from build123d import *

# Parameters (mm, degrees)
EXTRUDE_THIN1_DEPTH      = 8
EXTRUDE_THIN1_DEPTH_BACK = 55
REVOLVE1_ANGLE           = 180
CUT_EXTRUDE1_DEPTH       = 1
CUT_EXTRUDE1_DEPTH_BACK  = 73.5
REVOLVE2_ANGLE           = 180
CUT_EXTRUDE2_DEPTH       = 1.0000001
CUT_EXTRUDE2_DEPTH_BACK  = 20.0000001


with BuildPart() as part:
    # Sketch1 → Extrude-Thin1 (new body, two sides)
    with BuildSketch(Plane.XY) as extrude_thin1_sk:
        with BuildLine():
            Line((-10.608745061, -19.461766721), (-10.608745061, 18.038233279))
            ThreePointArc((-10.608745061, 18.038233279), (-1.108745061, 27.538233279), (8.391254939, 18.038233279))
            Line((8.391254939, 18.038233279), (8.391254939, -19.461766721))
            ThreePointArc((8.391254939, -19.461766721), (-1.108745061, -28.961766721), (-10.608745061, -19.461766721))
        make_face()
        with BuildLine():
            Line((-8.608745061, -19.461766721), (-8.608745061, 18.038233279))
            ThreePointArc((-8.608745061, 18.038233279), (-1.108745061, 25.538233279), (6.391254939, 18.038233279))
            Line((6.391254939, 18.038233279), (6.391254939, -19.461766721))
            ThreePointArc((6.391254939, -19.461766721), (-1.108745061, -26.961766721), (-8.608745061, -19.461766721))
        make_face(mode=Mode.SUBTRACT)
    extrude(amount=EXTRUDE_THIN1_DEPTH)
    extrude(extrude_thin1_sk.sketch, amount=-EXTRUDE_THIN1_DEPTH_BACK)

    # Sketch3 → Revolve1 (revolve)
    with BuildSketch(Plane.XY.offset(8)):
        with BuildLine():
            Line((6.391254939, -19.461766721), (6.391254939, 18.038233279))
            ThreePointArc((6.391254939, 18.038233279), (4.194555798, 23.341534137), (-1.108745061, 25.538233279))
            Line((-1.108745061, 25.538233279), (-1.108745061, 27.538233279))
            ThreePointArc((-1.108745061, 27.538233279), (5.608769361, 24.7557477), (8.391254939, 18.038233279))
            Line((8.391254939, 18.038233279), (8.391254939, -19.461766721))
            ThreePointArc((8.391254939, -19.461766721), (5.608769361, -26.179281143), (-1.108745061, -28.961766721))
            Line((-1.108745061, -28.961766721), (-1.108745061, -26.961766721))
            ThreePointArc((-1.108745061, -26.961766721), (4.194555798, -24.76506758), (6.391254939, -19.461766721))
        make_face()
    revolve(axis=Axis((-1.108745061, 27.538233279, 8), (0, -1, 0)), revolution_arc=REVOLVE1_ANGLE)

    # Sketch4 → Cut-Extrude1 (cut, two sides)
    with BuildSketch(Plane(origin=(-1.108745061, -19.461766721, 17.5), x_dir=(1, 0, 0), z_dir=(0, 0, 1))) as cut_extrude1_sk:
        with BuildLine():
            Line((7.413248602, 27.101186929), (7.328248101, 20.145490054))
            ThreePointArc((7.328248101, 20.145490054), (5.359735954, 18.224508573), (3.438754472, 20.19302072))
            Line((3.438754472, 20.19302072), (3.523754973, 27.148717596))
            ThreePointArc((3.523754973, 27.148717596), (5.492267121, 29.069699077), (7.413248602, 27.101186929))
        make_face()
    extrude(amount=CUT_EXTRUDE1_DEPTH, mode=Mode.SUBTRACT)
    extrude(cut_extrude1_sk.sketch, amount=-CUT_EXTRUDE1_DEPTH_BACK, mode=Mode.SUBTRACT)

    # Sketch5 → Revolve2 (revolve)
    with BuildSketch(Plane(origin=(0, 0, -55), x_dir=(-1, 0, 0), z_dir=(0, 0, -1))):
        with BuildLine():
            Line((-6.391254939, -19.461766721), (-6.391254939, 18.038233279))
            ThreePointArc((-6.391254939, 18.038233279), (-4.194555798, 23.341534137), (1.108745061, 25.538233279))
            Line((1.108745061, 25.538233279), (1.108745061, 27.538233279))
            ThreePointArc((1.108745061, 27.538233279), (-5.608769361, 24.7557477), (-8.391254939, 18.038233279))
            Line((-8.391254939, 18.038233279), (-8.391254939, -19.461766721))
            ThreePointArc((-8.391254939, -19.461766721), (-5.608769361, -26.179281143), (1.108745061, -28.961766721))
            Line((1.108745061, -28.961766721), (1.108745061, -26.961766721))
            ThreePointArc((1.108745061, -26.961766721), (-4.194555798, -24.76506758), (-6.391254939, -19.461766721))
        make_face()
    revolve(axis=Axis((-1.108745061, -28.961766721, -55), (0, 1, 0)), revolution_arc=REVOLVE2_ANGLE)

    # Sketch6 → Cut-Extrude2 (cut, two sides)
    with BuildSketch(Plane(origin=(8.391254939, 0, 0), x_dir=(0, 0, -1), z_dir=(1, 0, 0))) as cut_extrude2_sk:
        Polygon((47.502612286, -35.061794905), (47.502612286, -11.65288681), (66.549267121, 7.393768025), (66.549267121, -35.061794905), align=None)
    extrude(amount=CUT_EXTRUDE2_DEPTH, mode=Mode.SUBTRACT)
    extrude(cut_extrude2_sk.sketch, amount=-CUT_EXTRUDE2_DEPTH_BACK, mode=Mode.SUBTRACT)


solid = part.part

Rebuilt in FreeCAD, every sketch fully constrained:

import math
import FreeCAD as App
import Part
import Sketcher
Q = App.Units.Quantity


def add_polygon(sketch, points):
    """Adds a closed chain of lines whose ends are joined by coincident constraints."""
    first, n = sketch.GeometryCount, len(points)
    for a, b in zip(points, points[1:] + points[:1]):
        sketch.addGeometry(Part.LineSegment(App.Vector(*a, 0), App.Vector(*b, 0)), False)
    for i in range(n):
        sketch.addConstraint(Sketcher.Constraint("Coincident", first + i, 2, first + (i + 1) % n, 1))

doc = App.newDocument("Part")
body = doc.addObject("PartDesign::Body", "Body")

# Sketch on XY plane
sketch1 = body.newObject("Sketcher::SketchObject", "Sketch")
sketch1.AttachmentSupport = (doc.getObject("XY_Plane"), [""])
sketch1.MapMode = "FlatFace"
sketch1.addGeometry(Part.LineSegment(App.Vector(-10.608745, 18.038233, 0), App.Vector(-10.608745, -19.461767, 0)), False)
sketch1.addGeometry(Part.ArcOfCircle(Part.Circle(App.Vector(-1.108745, -19.461767, 0), App.Vector(0, 0, 1), 9.5), math.radians(180), math.radians(360)), False)
sketch1.addGeometry(Part.LineSegment(App.Vector(8.391255, -19.461767, 0), App.Vector(8.391255, 18.038233, 0)), False)
sketch1.addGeometry(Part.ArcOfCircle(Part.Circle(App.Vector(-1.108745, 18.038233, 0), App.Vector(0, 0, 1), 9.5), math.radians(0), math.radians(180)), False)
sketch1.addGeometry(Part.LineSegment(App.Vector(-8.608745, -19.461767, 0), App.Vector(-8.608745, 18.038233, 0)), False)
sketch1.addGeometry(Part.ArcOfCircle(Part.Circle(App.Vector(-1.108745, 18.038233, 0), App.Vector(0, 0, 1), 7.5), math.radians(0), math.radians(180)), False)
sketch1.addGeometry(Part.LineSegment(App.Vector(6.391255, 18.038233, 0), App.Vector(6.391255, -19.461767, 0)), False)
sketch1.addGeometry(Part.ArcOfCircle(Part.Circle(App.Vector(-1.108745, -19.461767, 0), App.Vector(0, 0, 1), 7.5), math.radians(180), math.radians(360)), False)
sketch1.addConstraint(Sketcher.Constraint("Tangent", 0, 2, 1, 1))
sketch1.addConstraint(Sketcher.Constraint("Tangent", 1, 2, 2, 1))
sketch1.addConstraint(Sketcher.Constraint("Tangent", 2, 2, 3, 1))
sketch1.addConstraint(Sketcher.Constraint("Tangent", 3, 2, 0, 1))
sketch1.addConstraint(Sketcher.Constraint("Tangent", 4, 2, 5, 2))
sketch1.addConstraint(Sketcher.Constraint("Tangent", 5, 1, 6, 1))
sketch1.addConstraint(Sketcher.Constraint("Tangent", 6, 2, 7, 2))
sketch1.addConstraint(Sketcher.Constraint("Tangent", 7, 1, 4, 1))
sketch1.addConstraint(Sketcher.Constraint("Vertical", 0))
sketch1.addConstraint(Sketcher.Constraint("Vertical", 2))
sketch1.addConstraint(Sketcher.Constraint("Vertical", 4))
sketch1.addConstraint(Sketcher.Constraint("Vertical", 6))
sketch1.addConstraint(Sketcher.Constraint("Coincident", 5, 3, 3, 3))
sketch1.addConstraint(Sketcher.Constraint("Horizontal", 7, 3, 0, 2))
sketch1.addConstraint(Sketcher.Constraint("Radius", 1, 9.5))
sketch1.addConstraint(Sketcher.Constraint("Radius", 5, 7.5))
sketch1.addConstraint(Sketcher.Constraint("DistanceY", 0, 2, 0, 1, 37.5))
sketch1.addConstraint(Sketcher.Constraint("DistanceX", 1, 3, -1, 1, 1.108745))
sketch1.addConstraint(Sketcher.Constraint("DistanceY", 1, 3, -1, 1, 19.461767))
pad1 = body.newObject("PartDesign::Pad", "Pad")
pad1.Profile = sketch1
pad1.Type = "TwoLengths"
pad1.Length = 8
pad1.Length2 = 55

# Sketch on XY plane
sketch2 = body.newObject("Sketcher::SketchObject", "Sketch001")
sketch2.AttachmentSupport = (doc.getObject("XY_Plane"), [""])
sketch2.MapMode = "FlatFace"
sketch2.AttachmentOffset = App.Placement(App.Vector(0, 0, 8), App.Rotation())
sketch2.addGeometry(Part.LineSegment(App.Vector(6.391255, 18.038233, 0), App.Vector(6.391255, -19.461767, 0)), False)
sketch2.addGeometry(Part.ArcOfCircle(Part.Circle(App.Vector(-1.108745, -19.461767, 0), App.Vector(0, 0, 1), 7.5), math.radians(-90), math.radians(0)), False)
sketch2.addGeometry(Part.LineSegment(App.Vector(-1.108745, -26.961767, 0), App.Vector(-1.108745, -28.961767, 0)), False)
sketch2.addGeometry(Part.ArcOfCircle(Part.Circle(App.Vector(-1.108745, -19.461767, 0), App.Vector(0, 0, 1), 9.5), math.radians(-90), math.radians(0)), False)
sketch2.addGeometry(Part.LineSegment(App.Vector(8.391255, -19.461767, 0), App.Vector(8.391255, 18.038233, 0)), False)
sketch2.addGeometry(Part.ArcOfCircle(Part.Circle(App.Vector(-1.108745, 18.038233, 0), App.Vector(0, 0, 1), 9.5), math.radians(0), math.radians(90)), False)
sketch2.addGeometry(Part.LineSegment(App.Vector(-1.108745, 27.538233, 0), App.Vector(-1.108745, 25.538233, 0)), False)
sketch2.addGeometry(Part.ArcOfCircle(Part.Circle(App.Vector(-1.108745, 18.038233, 0), App.Vector(0, 0, 1), 7.5), math.radians(0), math.radians(90)), False)
sketch2.addGeometry(Part.LineSegment(App.Vector(-1.108745, 27.538233, 0), App.Vector(-1.108745, -28.961767, 0)), True)  # axis
sketch2.addConstraint(Sketcher.Constraint("Tangent", 0, 2, 1, 2))
sketch2.addConstraint(Sketcher.Constraint("Coincident", 1, 1, 2, 1))
sketch2.addConstraint(Sketcher.Constraint("Coincident", 2, 2, 3, 1))
sketch2.addConstraint(Sketcher.Constraint("Tangent", 3, 2, 4, 1))
sketch2.addConstraint(Sketcher.Constraint("Tangent", 4, 2, 5, 1))
sketch2.addConstraint(Sketcher.Constraint("Coincident", 5, 2, 6, 1))
sketch2.addConstraint(Sketcher.Constraint("Coincident", 6, 2, 7, 2))
sketch2.addConstraint(Sketcher.Constraint("Tangent", 7, 1, 0, 1))
sketch2.addConstraint(Sketcher.Constraint("Vertical", 0))
sketch2.addConstraint(Sketcher.Constraint("Vertical", 2))
sketch2.addConstraint(Sketcher.Constraint("Vertical", 4))
sketch2.addConstraint(Sketcher.Constraint("Vertical", 6))
sketch2.addConstraint(Sketcher.Constraint("Vertical", 8))
sketch2.addConstraint(Sketcher.Constraint("Coincident", 3, 3, 1, 3))
sketch2.addConstraint(Sketcher.Constraint("Coincident", 7, 3, 5, 3))
sketch2.addConstraint(Sketcher.Constraint("Coincident", 8, 1, 5, 2))
sketch2.addConstraint(Sketcher.Constraint("Coincident", 8, 2, 2, 2))
sketch2.addConstraint(Sketcher.Constraint("Equal", 3, 5))
sketch2.addConstraint(Sketcher.Constraint("Vertical", 7, 3, 1, 1))
sketch2.addConstraint(Sketcher.Constraint("Radius", 1, 7.5))
sketch2.addConstraint(Sketcher.Constraint("Radius", 3, 9.5))
sketch2.addConstraint(Sketcher.Constraint("DistanceY", 0, 2, 0, 1, 37.5))
sketch2.addConstraint(Sketcher.Constraint("DistanceX", 1, 3, -1, 1, 1.108745))
sketch2.addConstraint(Sketcher.Constraint("DistanceY", 1, 3, -1, 1, 19.461767))
revolution = body.newObject("PartDesign::Revolution", "Revolution")
revolution.Profile = sketch2
revolution.ReferenceAxis = (sketch2, ["Axis0"])
revolution.Angle = 180

# Sketch on XY plane
sketch3 = body.newObject("Sketcher::SketchObject", "Sketch002")
sketch3.AttachmentSupport = (doc.getObject("XY_Plane"), [""])
sketch3.MapMode = "FlatFace"
sketch3.AttachmentOffset = App.Placement(App.Vector(0, 0, 17.5), App.Rotation())
sketch3.addGeometry(Part.LineSegment(App.Vector(6.219503, 0.683723, 0), App.Vector(6.304504, 7.63942, 0)), False)
sketch3.addGeometry(Part.ArcOfCircle(Part.Circle(App.Vector(4.359757, 7.663186, 0), App.Vector(0, 0, 1), 1.944892), math.radians(-0.700135), math.radians(179.299865)), False)
sketch3.addGeometry(Part.LineSegment(App.Vector(2.41501, 7.686951, 0), App.Vector(2.330009, 0.731254, 0)), False)
sketch3.addGeometry(Part.ArcOfCircle(Part.Circle(App.Vector(4.274756, 0.707489, 0), App.Vector(0, 0, 1), 1.944892), math.radians(179.299865), math.radians(359.299865)), False)
sketch3.addConstraint(Sketcher.Constraint("Tangent", 0, 2, 1, 1))
sketch3.addConstraint(Sketcher.Constraint("Tangent", 1, 2, 2, 1))
sketch3.addConstraint(Sketcher.Constraint("Tangent", 2, 2, 3, 1))
sketch3.addConstraint(Sketcher.Constraint("Tangent", 3, 2, 0, 1))
sketch3.addConstraint(Sketcher.Constraint("Equal", 1, 3))
sketch3.addConstraint(Sketcher.Constraint("Radius", 1, 1.944892))
sketch3.addConstraint(Sketcher.Constraint("DistanceX", 3, 3, 1, 3, 0.085))
sketch3.addConstraint(Sketcher.Constraint("DistanceY", -1, 1, 3, 3, 0.707489))
sketch3.addConstraint(Sketcher.Constraint("DistanceY", -1, 1, 0, 2, 7.63942))
sketch3.addConstraint(Sketcher.Constraint("DistanceX", -1, 1, 1, 2, 2.41501))
pocket1 = body.newObject("PartDesign::Pocket", "Pocket")
pocket1.Profile = sketch3
pocket1.Type = "ThroughAll"
pocket1.Midplane = True

# Sketch on XY plane
sketch4 = body.newObject("Sketcher::SketchObject", "Sketch003")
sketch4.AttachmentSupport = (doc.getObject("XY_Plane"), [""])
sketch4.MapMode = "FlatFace"
sketch4.AttachmentOffset = App.Placement(App.Vector(0, 0, -55), App.Rotation())
sketch4.addGeometry(Part.LineSegment(App.Vector(6.391255, -19.461767, 0), App.Vector(6.391255, 18.038233, 0)), False)
sketch4.addGeometry(Part.ArcOfCircle(Part.Circle(App.Vector(-1.108745, 18.038233, 0), App.Vector(0, 0, 1), 7.5), math.radians(0), math.radians(90)), False)
sketch4.addGeometry(Part.LineSegment(App.Vector(-1.108745, 25.538233, 0), App.Vector(-1.108745, 27.538233, 0)), False)
sketch4.addGeometry(Part.ArcOfCircle(Part.Circle(App.Vector(-1.108745, 18.038233, 0), App.Vector(0, 0, 1), 9.5), math.radians(0), math.radians(90)), False)
sketch4.addGeometry(Part.LineSegment(App.Vector(8.391255, 18.038233, 0), App.Vector(8.391255, -19.461767, 0)), False)
sketch4.addGeometry(Part.ArcOfCircle(Part.Circle(App.Vector(-1.108745, -19.461767, 0), App.Vector(0, 0, 1), 9.5), math.radians(-90), math.radians(0)), False)
sketch4.addGeometry(Part.LineSegment(App.Vector(-1.108745, -28.961767, 0), App.Vector(-1.108745, -26.961767, 0)), False)
sketch4.addGeometry(Part.ArcOfCircle(Part.Circle(App.Vector(-1.108745, -19.461767, 0), App.Vector(0, 0, 1), 7.5), math.radians(-90), math.radians(0)), False)
sketch4.addGeometry(Part.LineSegment(App.Vector(-1.108745, -28.961767, 0), App.Vector(-1.108745, 27.538233, 0)), True)  # axis
sketch4.addConstraint(Sketcher.Constraint("Tangent", 0, 2, 1, 1))
sketch4.addConstraint(Sketcher.Constraint("Coincident", 1, 2, 2, 1))
sketch4.addConstraint(Sketcher.Constraint("Coincident", 2, 2, 3, 2))
sketch4.addConstraint(Sketcher.Constraint("Tangent", 3, 1, 4, 1))
sketch4.addConstraint(Sketcher.Constraint("Tangent", 4, 2, 5, 2))
sketch4.addConstraint(Sketcher.Constraint("Coincident", 5, 1, 6, 1))
sketch4.addConstraint(Sketcher.Constraint("Coincident", 6, 2, 7, 1))
sketch4.addConstraint(Sketcher.Constraint("Tangent", 7, 2, 0, 1))
sketch4.addConstraint(Sketcher.Constraint("Vertical", 0))
sketch4.addConstraint(Sketcher.Constraint("Vertical", 2))
sketch4.addConstraint(Sketcher.Constraint("Vertical", 4))
sketch4.addConstraint(Sketcher.Constraint("Vertical", 6))
sketch4.addConstraint(Sketcher.Constraint("Vertical", 8))
sketch4.addConstraint(Sketcher.Constraint("Coincident", 3, 3, 1, 3))
sketch4.addConstraint(Sketcher.Constraint("Coincident", 7, 3, 5, 3))
sketch4.addConstraint(Sketcher.Constraint("Coincident", 8, 1, 5, 1))
sketch4.addConstraint(Sketcher.Constraint("Coincident", 8, 2, 2, 2))
sketch4.addConstraint(Sketcher.Constraint("Equal", 3, 5))
sketch4.addConstraint(Sketcher.Constraint("Vertical", 7, 3, 1, 2))
sketch4.addConstraint(Sketcher.Constraint("Radius", 1, 7.5))
sketch4.addConstraint(Sketcher.Constraint("Radius", 3, 9.5))
sketch4.addConstraint(Sketcher.Constraint("DistanceY", 0, 1, 0, 2, 37.5))
sketch4.addConstraint(Sketcher.Constraint("DistanceX", 1, 3, -1, 1, 1.108745))
sketch4.addConstraint(Sketcher.Constraint("DistanceY", -1, 1, 1, 3, 18.038233))
revolution2 = body.newObject("PartDesign::Revolution", "Revolution001")
revolution2.Profile = sketch4
revolution2.ReferenceAxis = (sketch4, ["Axis0"])
revolution2.Angle = 180

# Sketch on YZ plane
sketch5 = body.newObject("Sketcher::SketchObject", "Sketch004")
sketch5.AttachmentSupport = (doc.getObject("YZ_Plane"), [""])
sketch5.MapMode = "FlatFace"
sketch5.AttachmentOffset = App.Placement(App.Vector(0, 0, 8.391255), App.Rotation())
add_polygon(sketch5, [(-11.652887, -47.502612), (-35.061795, -47.502612), (-35.061795, -66.549267), (7.393768, -66.549267)])  # lines 0-3
sketch5.addConstraint(Sketcher.Constraint("Horizontal", 0))
sketch5.addConstraint(Sketcher.Constraint("Vertical", 1))
sketch5.addConstraint(Sketcher.Constraint("Horizontal", 2))
sketch5.addConstraint(Sketcher.Constraint("Angle", 3, Q("135 deg")))
sketch5.addConstraint(Sketcher.Constraint("DistanceX", 0, 2, 0, 1, 23.408908))
sketch5.addConstraint(Sketcher.Constraint("DistanceX", 2, 1, 2, 2, 42.455563))
sketch5.addConstraint(Sketcher.Constraint("DistanceX", -1, 1, 2, 2, 7.393768))
sketch5.addConstraint(Sketcher.Constraint("DistanceY", 0, 2, -1, 1, 47.502612))
pocket2 = body.newObject("PartDesign::Pocket", "Pocket001")
pocket2.Profile = sketch5
pocket2.Type = "ThroughAll"
pocket2.Midplane = True

doc.recompute()
